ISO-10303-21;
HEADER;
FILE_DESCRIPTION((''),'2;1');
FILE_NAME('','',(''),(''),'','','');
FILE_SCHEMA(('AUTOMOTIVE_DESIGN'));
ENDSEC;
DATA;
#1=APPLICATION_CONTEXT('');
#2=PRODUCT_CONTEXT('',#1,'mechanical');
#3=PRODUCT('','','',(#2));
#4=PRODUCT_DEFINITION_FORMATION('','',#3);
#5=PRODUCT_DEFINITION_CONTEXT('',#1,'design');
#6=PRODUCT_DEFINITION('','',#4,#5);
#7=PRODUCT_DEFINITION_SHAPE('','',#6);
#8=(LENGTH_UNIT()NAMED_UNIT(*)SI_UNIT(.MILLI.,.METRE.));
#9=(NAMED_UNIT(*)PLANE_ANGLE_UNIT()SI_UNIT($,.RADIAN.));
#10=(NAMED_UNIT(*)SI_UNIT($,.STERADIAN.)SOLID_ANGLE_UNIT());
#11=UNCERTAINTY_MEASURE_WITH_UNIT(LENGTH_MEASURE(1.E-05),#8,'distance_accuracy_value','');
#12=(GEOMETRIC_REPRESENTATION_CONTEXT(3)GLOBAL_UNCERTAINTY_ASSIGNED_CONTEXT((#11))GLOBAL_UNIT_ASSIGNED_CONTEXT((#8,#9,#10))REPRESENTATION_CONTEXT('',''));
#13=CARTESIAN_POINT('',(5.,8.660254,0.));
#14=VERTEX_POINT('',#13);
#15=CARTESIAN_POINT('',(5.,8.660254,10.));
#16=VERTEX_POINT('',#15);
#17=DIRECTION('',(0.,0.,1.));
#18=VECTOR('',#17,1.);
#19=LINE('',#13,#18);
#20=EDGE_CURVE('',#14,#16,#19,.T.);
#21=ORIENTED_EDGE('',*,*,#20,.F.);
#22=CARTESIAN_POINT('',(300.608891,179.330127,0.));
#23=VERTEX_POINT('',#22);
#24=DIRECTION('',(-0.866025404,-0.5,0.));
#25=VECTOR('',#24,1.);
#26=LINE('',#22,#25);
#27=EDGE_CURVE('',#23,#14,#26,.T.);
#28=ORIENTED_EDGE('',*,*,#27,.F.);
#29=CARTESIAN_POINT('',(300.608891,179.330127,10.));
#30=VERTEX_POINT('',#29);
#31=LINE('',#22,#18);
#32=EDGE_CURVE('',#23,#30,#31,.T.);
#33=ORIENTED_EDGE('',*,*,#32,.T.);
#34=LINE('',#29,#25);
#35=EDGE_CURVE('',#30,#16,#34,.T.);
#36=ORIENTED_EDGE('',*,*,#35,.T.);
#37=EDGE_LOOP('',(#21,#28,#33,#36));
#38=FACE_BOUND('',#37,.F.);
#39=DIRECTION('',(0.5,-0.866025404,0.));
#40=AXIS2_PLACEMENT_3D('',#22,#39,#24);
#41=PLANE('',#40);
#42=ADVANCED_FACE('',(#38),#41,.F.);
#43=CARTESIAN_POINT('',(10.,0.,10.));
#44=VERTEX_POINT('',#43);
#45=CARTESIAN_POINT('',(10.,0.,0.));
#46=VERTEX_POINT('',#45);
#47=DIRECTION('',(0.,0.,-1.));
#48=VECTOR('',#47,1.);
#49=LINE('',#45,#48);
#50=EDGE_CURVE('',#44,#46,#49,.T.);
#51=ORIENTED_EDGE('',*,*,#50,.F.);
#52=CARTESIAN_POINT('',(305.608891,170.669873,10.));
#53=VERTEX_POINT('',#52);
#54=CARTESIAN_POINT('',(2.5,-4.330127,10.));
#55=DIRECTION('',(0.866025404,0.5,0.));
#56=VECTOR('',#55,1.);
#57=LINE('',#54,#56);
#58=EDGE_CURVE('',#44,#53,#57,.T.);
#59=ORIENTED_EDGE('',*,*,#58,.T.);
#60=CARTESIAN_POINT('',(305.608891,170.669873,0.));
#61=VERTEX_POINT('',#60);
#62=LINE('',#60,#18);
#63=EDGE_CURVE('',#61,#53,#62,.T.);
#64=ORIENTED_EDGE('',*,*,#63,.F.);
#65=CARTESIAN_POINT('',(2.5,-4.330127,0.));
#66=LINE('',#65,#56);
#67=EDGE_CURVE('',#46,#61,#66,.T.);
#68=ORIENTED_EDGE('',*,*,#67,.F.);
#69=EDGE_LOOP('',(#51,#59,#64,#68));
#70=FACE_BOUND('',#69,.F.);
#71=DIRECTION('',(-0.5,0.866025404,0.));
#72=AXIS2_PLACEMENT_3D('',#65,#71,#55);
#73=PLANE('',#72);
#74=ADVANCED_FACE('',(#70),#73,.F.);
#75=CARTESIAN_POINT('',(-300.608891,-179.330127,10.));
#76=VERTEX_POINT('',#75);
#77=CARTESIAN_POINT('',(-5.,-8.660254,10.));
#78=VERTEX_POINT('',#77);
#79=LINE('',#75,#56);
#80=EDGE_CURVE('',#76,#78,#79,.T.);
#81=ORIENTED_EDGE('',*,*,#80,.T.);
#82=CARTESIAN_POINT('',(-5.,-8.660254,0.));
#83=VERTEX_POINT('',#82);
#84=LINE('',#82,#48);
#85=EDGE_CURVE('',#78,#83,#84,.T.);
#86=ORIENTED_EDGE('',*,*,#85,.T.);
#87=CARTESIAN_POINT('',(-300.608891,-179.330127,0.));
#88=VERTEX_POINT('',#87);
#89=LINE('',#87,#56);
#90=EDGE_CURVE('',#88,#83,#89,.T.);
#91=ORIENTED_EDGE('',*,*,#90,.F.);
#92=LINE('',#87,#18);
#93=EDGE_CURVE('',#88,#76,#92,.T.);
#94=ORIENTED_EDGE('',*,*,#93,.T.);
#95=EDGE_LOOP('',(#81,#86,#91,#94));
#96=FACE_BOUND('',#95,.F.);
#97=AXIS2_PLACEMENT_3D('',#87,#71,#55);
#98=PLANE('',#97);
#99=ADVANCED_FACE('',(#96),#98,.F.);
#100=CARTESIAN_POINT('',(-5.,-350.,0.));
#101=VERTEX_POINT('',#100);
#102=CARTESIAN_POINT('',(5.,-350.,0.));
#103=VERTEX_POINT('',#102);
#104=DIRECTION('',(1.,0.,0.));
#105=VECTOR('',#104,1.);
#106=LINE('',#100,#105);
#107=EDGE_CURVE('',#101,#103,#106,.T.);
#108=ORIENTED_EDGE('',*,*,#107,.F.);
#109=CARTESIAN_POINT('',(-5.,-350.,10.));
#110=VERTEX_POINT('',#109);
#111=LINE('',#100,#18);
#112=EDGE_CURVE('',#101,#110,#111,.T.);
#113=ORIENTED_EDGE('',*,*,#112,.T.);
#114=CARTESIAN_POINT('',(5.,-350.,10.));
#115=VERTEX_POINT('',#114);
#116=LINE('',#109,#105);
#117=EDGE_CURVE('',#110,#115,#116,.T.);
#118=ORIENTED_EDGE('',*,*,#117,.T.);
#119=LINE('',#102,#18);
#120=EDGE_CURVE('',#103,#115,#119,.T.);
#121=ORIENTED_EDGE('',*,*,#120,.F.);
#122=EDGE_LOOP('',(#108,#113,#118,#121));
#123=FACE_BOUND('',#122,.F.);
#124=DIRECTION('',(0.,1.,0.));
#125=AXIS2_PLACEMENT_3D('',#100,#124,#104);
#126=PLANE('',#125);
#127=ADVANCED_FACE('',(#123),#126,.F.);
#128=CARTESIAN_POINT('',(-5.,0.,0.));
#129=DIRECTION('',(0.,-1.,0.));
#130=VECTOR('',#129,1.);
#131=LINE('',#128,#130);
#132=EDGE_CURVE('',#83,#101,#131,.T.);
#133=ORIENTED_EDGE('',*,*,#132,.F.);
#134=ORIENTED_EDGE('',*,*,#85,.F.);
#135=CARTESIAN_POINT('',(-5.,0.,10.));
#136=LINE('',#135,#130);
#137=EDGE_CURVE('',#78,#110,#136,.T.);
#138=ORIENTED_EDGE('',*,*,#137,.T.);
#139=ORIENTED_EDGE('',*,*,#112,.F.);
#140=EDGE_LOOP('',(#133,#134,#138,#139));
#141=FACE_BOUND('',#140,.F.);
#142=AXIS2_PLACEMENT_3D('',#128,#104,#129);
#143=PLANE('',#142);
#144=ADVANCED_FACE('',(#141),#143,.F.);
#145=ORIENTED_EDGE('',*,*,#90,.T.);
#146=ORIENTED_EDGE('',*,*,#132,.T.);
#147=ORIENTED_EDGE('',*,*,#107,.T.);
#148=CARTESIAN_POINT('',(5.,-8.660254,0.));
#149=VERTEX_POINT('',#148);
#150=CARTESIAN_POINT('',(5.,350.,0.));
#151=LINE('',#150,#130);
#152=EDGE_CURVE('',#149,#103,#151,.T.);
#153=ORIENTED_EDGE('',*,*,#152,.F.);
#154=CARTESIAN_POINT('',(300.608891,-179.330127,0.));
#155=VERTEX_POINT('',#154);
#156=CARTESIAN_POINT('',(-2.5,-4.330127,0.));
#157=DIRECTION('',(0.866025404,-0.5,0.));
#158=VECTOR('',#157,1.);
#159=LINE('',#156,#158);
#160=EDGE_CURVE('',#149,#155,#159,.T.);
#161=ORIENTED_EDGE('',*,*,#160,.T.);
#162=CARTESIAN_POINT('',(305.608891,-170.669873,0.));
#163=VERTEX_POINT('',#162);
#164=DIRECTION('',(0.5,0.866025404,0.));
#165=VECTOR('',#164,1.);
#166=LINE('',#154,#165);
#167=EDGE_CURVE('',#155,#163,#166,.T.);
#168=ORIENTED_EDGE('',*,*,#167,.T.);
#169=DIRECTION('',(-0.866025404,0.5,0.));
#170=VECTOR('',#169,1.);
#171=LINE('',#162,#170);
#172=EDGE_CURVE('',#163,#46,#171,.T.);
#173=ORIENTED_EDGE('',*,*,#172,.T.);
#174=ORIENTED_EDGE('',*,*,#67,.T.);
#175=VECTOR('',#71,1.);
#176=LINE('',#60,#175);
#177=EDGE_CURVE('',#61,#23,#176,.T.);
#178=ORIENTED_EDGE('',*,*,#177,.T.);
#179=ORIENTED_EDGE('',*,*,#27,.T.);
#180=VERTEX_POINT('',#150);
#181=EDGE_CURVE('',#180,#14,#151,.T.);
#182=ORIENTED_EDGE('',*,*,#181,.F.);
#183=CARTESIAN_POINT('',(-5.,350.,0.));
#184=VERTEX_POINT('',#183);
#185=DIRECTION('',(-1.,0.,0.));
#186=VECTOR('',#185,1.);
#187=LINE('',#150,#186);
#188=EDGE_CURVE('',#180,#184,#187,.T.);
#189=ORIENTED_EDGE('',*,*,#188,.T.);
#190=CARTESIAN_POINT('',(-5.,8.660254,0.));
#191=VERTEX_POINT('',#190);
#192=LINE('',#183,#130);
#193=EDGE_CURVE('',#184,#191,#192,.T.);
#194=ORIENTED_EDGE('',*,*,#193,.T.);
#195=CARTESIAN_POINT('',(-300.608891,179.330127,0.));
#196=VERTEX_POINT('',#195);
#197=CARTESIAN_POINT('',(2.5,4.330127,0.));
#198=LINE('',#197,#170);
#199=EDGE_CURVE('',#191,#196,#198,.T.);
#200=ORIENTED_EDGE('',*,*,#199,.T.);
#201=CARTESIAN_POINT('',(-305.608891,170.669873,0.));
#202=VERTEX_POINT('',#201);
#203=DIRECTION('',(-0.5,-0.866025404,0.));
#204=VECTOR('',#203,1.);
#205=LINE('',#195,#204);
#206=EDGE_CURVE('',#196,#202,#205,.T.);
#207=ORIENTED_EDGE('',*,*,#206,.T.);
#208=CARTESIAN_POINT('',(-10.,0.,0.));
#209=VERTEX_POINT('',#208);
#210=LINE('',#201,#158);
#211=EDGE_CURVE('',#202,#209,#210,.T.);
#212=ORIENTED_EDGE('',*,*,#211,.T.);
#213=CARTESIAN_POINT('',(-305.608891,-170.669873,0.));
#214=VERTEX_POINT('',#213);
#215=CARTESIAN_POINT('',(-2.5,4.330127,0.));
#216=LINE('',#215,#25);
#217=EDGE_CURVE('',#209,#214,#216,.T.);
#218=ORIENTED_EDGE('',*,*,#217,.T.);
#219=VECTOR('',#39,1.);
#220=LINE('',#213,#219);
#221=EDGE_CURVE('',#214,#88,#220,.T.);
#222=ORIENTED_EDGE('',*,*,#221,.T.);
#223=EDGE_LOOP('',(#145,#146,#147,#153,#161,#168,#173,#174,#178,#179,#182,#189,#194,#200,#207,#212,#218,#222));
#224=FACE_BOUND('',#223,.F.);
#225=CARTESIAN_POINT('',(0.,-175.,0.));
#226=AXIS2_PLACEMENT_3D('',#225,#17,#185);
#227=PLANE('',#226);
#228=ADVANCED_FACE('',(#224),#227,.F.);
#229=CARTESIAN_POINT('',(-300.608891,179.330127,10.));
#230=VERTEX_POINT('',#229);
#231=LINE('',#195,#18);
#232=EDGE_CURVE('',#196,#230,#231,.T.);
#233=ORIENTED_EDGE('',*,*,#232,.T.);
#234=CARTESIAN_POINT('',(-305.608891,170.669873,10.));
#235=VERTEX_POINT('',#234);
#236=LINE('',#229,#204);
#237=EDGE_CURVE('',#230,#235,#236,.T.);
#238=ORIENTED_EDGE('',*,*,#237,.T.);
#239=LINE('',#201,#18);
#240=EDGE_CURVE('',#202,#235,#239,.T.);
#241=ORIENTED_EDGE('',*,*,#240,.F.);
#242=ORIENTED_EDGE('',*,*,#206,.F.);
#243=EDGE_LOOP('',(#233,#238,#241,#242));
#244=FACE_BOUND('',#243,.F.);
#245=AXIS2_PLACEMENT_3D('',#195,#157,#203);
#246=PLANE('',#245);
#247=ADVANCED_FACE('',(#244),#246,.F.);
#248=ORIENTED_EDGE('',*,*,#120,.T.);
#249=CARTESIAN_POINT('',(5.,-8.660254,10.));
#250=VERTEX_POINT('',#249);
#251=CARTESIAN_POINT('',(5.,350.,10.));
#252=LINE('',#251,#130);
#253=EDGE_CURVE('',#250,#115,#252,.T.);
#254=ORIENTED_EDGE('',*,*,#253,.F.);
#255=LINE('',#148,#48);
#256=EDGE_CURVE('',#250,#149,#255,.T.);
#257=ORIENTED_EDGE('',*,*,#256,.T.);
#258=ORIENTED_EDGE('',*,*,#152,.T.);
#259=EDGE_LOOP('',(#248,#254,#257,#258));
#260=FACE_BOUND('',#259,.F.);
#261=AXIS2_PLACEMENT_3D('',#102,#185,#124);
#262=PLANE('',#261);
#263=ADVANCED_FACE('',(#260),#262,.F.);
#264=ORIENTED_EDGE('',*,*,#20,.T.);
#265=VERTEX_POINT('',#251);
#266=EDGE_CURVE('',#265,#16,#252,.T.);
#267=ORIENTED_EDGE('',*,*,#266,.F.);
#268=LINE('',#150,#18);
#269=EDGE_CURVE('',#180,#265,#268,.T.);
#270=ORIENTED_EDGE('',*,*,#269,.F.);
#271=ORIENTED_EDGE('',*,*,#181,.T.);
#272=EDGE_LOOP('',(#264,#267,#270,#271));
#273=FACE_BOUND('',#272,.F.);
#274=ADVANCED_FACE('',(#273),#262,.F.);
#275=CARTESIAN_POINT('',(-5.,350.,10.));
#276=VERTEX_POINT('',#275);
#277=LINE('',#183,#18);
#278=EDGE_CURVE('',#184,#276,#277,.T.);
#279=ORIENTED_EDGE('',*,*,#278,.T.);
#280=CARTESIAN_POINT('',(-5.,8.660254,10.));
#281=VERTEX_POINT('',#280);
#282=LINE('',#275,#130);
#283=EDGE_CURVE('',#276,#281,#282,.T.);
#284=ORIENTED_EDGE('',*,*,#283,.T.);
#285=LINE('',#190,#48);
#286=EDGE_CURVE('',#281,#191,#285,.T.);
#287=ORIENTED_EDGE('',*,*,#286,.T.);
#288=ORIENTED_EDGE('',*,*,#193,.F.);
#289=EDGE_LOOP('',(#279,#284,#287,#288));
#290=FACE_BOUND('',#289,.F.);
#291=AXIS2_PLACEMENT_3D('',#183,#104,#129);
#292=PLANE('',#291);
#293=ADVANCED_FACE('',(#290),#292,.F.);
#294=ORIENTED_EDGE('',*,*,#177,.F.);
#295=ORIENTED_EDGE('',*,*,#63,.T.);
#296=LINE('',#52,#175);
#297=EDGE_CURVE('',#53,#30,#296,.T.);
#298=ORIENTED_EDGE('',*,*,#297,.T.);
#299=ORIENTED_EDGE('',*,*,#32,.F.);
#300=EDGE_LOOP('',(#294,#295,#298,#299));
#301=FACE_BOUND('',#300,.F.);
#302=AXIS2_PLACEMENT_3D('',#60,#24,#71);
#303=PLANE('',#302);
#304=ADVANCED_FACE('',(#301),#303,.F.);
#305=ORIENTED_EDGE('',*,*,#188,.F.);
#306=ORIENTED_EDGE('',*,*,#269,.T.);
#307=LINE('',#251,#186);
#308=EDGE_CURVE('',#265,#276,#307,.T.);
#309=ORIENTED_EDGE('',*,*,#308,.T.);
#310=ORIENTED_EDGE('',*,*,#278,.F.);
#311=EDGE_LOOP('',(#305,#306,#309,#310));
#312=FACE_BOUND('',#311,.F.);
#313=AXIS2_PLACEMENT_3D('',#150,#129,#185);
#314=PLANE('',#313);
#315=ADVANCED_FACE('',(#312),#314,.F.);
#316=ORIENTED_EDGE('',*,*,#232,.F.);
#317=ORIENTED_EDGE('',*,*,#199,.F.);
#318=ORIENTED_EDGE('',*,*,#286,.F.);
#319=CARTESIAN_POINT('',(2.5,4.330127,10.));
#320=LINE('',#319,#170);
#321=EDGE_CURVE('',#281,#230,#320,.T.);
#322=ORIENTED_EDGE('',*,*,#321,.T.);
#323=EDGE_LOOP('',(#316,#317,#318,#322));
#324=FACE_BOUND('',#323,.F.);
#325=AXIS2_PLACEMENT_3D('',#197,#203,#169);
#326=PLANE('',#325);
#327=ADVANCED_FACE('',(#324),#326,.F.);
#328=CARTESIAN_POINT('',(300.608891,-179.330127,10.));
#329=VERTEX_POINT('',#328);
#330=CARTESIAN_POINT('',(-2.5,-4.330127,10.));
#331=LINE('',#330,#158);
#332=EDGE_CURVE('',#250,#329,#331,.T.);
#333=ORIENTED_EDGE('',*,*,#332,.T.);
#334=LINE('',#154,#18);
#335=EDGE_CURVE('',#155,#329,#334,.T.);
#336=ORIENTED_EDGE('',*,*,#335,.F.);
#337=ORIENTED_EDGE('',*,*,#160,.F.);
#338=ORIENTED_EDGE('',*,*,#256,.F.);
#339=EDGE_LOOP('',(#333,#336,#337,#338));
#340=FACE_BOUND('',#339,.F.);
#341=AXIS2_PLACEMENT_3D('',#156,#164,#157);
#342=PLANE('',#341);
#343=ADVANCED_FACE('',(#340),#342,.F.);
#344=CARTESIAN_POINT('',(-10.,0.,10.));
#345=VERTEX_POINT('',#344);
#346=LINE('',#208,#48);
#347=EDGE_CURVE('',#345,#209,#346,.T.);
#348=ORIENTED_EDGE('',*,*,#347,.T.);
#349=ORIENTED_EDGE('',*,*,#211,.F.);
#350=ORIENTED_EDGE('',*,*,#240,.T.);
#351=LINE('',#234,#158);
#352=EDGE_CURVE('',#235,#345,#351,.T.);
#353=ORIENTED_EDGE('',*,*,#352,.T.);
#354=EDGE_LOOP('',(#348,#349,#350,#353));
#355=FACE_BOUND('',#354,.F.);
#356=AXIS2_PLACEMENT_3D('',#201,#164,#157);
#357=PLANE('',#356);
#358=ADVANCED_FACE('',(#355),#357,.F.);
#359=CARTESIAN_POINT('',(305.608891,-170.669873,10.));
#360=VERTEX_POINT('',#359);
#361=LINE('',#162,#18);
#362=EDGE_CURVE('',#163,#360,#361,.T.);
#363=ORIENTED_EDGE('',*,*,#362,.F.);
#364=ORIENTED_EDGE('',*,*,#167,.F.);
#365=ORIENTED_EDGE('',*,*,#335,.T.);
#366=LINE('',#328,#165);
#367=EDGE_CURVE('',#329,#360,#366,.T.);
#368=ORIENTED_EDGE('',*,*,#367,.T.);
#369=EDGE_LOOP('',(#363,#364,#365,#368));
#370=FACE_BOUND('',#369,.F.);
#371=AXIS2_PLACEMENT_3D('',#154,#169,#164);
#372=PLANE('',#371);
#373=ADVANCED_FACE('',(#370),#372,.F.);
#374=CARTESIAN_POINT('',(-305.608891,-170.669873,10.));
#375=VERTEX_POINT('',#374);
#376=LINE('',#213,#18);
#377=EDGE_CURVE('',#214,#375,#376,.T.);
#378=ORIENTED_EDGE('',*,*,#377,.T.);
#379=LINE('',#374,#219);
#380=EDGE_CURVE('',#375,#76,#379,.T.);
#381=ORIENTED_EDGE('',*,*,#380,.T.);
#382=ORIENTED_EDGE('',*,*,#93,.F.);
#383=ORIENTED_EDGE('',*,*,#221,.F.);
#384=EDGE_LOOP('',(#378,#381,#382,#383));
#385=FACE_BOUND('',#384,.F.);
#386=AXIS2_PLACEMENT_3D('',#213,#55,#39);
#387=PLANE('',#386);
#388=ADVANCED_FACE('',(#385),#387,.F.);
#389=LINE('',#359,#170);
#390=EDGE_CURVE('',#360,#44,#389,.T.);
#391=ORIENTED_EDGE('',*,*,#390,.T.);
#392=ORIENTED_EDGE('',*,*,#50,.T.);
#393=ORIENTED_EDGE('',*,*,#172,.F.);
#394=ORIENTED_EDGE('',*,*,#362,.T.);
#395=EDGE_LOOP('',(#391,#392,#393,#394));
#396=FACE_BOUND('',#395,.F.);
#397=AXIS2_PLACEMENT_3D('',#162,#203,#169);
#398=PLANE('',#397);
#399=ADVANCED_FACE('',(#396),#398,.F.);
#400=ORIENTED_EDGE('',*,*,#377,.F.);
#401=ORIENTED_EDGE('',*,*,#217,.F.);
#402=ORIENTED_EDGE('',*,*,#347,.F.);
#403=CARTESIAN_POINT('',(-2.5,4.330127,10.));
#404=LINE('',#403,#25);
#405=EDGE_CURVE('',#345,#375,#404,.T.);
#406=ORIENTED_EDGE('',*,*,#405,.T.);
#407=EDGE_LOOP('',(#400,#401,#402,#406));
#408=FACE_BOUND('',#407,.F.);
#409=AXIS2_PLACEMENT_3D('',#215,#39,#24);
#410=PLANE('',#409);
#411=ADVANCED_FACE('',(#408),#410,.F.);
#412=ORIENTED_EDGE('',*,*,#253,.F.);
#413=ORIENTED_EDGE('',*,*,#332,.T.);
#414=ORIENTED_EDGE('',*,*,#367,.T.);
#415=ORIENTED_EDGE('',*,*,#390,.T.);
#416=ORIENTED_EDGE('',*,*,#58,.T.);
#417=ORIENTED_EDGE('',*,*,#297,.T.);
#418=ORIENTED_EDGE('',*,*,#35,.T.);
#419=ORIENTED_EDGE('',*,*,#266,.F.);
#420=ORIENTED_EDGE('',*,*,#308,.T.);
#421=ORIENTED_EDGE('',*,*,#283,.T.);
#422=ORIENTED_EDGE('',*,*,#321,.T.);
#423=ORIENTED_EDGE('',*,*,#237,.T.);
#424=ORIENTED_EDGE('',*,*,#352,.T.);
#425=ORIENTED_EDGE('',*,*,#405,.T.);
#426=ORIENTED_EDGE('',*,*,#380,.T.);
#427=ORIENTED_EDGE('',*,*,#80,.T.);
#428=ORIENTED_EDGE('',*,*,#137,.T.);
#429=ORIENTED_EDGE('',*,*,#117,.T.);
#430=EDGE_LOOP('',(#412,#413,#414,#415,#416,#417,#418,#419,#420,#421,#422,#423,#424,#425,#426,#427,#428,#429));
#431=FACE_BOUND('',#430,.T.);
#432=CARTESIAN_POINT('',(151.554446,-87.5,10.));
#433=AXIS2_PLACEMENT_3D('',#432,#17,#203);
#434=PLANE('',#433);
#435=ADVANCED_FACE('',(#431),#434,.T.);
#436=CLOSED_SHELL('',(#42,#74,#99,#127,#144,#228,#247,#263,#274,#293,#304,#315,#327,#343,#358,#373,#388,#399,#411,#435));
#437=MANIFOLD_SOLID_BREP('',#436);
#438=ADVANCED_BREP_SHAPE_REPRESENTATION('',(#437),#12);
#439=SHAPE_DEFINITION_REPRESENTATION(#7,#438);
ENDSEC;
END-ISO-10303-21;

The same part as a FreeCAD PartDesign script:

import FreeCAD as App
import Part
import Sketcher

V = App.Vector
Q = App.Units.Quantity

doc = App.newDocument("Part")
params = doc.addObject("Spreadsheet::Sheet", "Params")
for row, (alias, value) in enumerate([
    ("sketch1_width", "10 mm"),
    ("sketch1_height", "350 mm"),
    ("pad1_length", "10 mm"),
], start=1):
    params.set(f"A{row}", alias)
    params.set(f"B{row}", "=" + value)
    params.setAlias(f"B{row}", alias)

body = doc.addObject("PartDesign::Body", "Body")

# Sketch on XY plane
sketch1 = doc.addObject("Sketcher::SketchObject", "Sketch")
body.addObject(sketch1)
sketch1.AttachmentSupport = (doc.XY_Plane, [""])
sketch1.MapMode = "FlatFace"
sketch1.addGeometry(Part.LineSegment(V(-5, 0, 0), V(5, 0, 0)), False)
sketch1.addGeometry(Part.LineSegment(V(5, 0, 0), V(5, 350, 0)), False)
sketch1.addGeometry(Part.LineSegment(V(5, 350, 0), V(-5, 350, 0)), False)
sketch1.addGeometry(Part.LineSegment(V(-5, 350, 0), V(-5, 0, 0)), False)
sketch1.addConstraint(Sketcher.Constraint("Coincident", 0, 2, 1, 1))
sketch1.addConstraint(Sketcher.Constraint("Coincident", 1, 2, 2, 1))
sketch1.addConstraint(Sketcher.Constraint("Coincident", 2, 2, 3, 1))
sketch1.addConstraint(Sketcher.Constraint("Coincident", 3, 2, 0, 1))
sketch1.addConstraint(Sketcher.Constraint("Horizontal", 0))
sketch1.addConstraint(Sketcher.Constraint("Vertical", 1))
sketch1.addConstraint(Sketcher.Constraint("Horizontal", 2))
sketch1.addConstraint(Sketcher.Constraint("Vertical", 3))
sketch1.addConstraint(Sketcher.Constraint("Symmetric", 0, 2, 3, 2, -1, 1))
sketch1.addConstraint(Sketcher.Constraint("DistanceX", 0, 1, 0, 2, Q("10 mm")))
sketch1.addConstraint(Sketcher.Constraint("DistanceY", 1, 1, 1, 2, Q("350 mm")))
sketch1.setExpression("Constraints[9]", "Params.sketch1_width")
sketch1.setExpression("Constraints[10]", "Params.sketch1_height")
pad1 = doc.addObject("PartDesign::Pad", "Pad")
body.addObject(pad1)
pad1.Profile = sketch1
pad1.setExpression("Length", "Params.pad1_length")
body2 = doc.addObject("PartDesign::Body", "Body001")
doc.recompute()

body2.BaseFeature = body
doc.recompute()

body3 = doc.addObject("PartDesign::Body", "Body002")
body3.BaseFeature = body
body3.Placement = App.Placement(V(0, 0, 0), App.Rotation(V(0, 0, 1), 60))
boolean = doc.addObject("PartDesign::Boolean", "Boolean")
body2.addObject(boolean)
boolean.Type = "Fuse"
boolean.addObjects([body3])
doc.recompute()

body4 = doc.addObject("PartDesign::Body", "Body003")
body4.BaseFeature = body
body4.Placement = App.Placement(V(0, 0, 0), App.Rotation(V(0, 0, 1), 120))
boolean2 = doc.addObject("PartDesign::Boolean", "Boolean001")
body2.addObject(boolean2)
boolean2.Type = "Fuse"
boolean2.addObjects([body4])
doc.recompute()

body5 = doc.addObject("PartDesign::Body", "Body004")
body5.BaseFeature = body
body5.Placement = App.Placement(V(0, 0, 0), App.Rotation(V(0, 0, 1), 180))
boolean3 = doc.addObject("PartDesign::Boolean", "Boolean002")
body2.addObject(boolean3)
boolean3.Type = "Fuse"
boolean3.addObjects([body5])
doc.recompute()

body6 = doc.addObject("PartDesign::Body", "Body005")
body6.BaseFeature = body
body6.Placement = App.Placement(V(0, 0, 0), App.Rotation(V(0, 0, 1), 240))
boolean4 = doc.addObject("PartDesign::Boolean", "Boolean003")
body2.addObject(boolean4)
boolean4.Type = "Fuse"
boolean4.addObjects([body6])
doc.recompute()

body.Placement = App.Placement(V(0, 0, 0), App.Rotation(V(0, 0, 1), 300))
boolean5 = doc.addObject("PartDesign::Boolean", "Boolean004")
body2.addObject(boolean5)
boolean5.Type = "Fuse"
boolean5.addObjects([body])

doc.recompute()
